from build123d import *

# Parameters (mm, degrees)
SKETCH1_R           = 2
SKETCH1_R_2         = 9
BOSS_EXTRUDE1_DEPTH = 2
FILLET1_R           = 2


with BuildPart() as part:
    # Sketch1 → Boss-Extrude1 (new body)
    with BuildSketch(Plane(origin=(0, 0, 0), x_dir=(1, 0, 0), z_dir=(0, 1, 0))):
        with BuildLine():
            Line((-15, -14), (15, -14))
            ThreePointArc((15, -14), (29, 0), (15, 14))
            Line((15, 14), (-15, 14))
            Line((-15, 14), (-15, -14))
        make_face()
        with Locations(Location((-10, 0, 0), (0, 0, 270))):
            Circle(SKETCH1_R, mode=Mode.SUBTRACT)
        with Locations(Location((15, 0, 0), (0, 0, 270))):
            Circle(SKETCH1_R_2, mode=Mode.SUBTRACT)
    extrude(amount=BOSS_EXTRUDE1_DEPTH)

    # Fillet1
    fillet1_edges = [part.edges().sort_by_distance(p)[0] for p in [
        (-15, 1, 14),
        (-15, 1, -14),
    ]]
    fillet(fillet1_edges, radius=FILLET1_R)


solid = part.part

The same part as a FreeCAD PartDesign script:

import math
import FreeCAD as App
import Part
import Sketcher
from FreeCAD import Vector


def edges_at(feature, points):
    """Names of the edges that pass closest to the given points."""
    edges = feature.Shape.Edges
    near = lambda p: min(range(len(edges)), key=lambda i: edges[i].distToShape(Part.Vertex(*p))[0])
    return sorted({f"Edge{near(p) + 1}" for p in points})

doc = App.newDocument("Part")
body = doc.addObject("PartDesign::Body", "Body")

# Sketch on XZ plane
sketch1 = doc.addObject("Sketcher::SketchObject", "Sketch")
body.addObject(sketch1)
sketch1.AttachmentSupport = (doc.XZ_Plane, [""])
sketch1.MapMode = "FlatFace"
sketch1.addGeometry(Part.LineSegment(Vector(-15, 14, 0), Vector(15, 14, 0)), False)
sketch1.addGeometry(Part.ArcOfCircle(Part.Circle(Vector(15, 0, 0), Vector(0, 0, 1), 14), math.radians(-90), math.radians(90)), False)
sketch1.addGeometry(Part.LineSegment(Vector(15, -14, 0), Vector(-15, -14, 0)), False)
sketch1.addGeometry(Part.LineSegment(Vector(-15, -14, 0), Vector(-15, 14, 0)), False)
sketch1.addGeometry(Part.Circle(Vector(-10, 0, 0), Vector(0, 0, 1), 2), False)
sketch1.addGeometry(Part.Circle(Vector(15, 0, 0), Vector(0, 0, 1), 9), False)
sketch1.addConstraint(Sketcher.Constraint("Tangent", 0, 2, 1, 2))
sketch1.addConstraint(Sketcher.Constraint("Tangent", 1, 1, 2, 1))
sketch1.addConstraint(Sketcher.Constraint("Coincident", 2, 2, 3, 1))
sketch1.addConstraint(Sketcher.Constraint("Coincident", 3, 2, 0, 1))
sketch1.addConstraint(Sketcher.Constraint("Horizontal", 0))
sketch1.addConstraint(Sketcher.Constraint("Horizontal", 2))
sketch1.addConstraint(Sketcher.Constraint("Vertical", 3))
sketch1.addConstraint(Sketcher.Constraint("Coincident", 5, 3, 1, 3))
sketch1.addConstraint(Sketcher.Constraint("Symmetric", 0, 2, 2, 2, -1, 1))
sketch1.addConstraint(Sketcher.Constraint("PointOnObject", 4, 3, -1))
sketch1.addConstraint(Sketcher.Constraint("Diameter", 4, 4.0))
sketch1.addConstraint(Sketcher.Constraint("Diameter", 5, 18.0))
sketch1.addConstraint(Sketcher.Constraint("Radius", 1, 14.0))
sketch1.addConstraint(Sketcher.Constraint("DistanceX", 0, 1, 0, 2, 30.0))
sketch1.addConstraint(Sketcher.Constraint("DistanceX", 4, 3, -1, 1, 10.0))
pad1 = doc.addObject("PartDesign::Pad", "Pad")
body.addObject(pad1)
pad1.Profile = sketch1
pad1.Length = 2
pad1.Reversed = True
doc.recompute()

fillet = doc.addObject("PartDesign::Fillet", "Fillet")
body.addObject(fillet)
fillet.Base = (pad1, edges_at(pad1, [(-15, 1, 14), (-15, 1, -14)]))
fillet.Radius = 2

doc.recompute()
